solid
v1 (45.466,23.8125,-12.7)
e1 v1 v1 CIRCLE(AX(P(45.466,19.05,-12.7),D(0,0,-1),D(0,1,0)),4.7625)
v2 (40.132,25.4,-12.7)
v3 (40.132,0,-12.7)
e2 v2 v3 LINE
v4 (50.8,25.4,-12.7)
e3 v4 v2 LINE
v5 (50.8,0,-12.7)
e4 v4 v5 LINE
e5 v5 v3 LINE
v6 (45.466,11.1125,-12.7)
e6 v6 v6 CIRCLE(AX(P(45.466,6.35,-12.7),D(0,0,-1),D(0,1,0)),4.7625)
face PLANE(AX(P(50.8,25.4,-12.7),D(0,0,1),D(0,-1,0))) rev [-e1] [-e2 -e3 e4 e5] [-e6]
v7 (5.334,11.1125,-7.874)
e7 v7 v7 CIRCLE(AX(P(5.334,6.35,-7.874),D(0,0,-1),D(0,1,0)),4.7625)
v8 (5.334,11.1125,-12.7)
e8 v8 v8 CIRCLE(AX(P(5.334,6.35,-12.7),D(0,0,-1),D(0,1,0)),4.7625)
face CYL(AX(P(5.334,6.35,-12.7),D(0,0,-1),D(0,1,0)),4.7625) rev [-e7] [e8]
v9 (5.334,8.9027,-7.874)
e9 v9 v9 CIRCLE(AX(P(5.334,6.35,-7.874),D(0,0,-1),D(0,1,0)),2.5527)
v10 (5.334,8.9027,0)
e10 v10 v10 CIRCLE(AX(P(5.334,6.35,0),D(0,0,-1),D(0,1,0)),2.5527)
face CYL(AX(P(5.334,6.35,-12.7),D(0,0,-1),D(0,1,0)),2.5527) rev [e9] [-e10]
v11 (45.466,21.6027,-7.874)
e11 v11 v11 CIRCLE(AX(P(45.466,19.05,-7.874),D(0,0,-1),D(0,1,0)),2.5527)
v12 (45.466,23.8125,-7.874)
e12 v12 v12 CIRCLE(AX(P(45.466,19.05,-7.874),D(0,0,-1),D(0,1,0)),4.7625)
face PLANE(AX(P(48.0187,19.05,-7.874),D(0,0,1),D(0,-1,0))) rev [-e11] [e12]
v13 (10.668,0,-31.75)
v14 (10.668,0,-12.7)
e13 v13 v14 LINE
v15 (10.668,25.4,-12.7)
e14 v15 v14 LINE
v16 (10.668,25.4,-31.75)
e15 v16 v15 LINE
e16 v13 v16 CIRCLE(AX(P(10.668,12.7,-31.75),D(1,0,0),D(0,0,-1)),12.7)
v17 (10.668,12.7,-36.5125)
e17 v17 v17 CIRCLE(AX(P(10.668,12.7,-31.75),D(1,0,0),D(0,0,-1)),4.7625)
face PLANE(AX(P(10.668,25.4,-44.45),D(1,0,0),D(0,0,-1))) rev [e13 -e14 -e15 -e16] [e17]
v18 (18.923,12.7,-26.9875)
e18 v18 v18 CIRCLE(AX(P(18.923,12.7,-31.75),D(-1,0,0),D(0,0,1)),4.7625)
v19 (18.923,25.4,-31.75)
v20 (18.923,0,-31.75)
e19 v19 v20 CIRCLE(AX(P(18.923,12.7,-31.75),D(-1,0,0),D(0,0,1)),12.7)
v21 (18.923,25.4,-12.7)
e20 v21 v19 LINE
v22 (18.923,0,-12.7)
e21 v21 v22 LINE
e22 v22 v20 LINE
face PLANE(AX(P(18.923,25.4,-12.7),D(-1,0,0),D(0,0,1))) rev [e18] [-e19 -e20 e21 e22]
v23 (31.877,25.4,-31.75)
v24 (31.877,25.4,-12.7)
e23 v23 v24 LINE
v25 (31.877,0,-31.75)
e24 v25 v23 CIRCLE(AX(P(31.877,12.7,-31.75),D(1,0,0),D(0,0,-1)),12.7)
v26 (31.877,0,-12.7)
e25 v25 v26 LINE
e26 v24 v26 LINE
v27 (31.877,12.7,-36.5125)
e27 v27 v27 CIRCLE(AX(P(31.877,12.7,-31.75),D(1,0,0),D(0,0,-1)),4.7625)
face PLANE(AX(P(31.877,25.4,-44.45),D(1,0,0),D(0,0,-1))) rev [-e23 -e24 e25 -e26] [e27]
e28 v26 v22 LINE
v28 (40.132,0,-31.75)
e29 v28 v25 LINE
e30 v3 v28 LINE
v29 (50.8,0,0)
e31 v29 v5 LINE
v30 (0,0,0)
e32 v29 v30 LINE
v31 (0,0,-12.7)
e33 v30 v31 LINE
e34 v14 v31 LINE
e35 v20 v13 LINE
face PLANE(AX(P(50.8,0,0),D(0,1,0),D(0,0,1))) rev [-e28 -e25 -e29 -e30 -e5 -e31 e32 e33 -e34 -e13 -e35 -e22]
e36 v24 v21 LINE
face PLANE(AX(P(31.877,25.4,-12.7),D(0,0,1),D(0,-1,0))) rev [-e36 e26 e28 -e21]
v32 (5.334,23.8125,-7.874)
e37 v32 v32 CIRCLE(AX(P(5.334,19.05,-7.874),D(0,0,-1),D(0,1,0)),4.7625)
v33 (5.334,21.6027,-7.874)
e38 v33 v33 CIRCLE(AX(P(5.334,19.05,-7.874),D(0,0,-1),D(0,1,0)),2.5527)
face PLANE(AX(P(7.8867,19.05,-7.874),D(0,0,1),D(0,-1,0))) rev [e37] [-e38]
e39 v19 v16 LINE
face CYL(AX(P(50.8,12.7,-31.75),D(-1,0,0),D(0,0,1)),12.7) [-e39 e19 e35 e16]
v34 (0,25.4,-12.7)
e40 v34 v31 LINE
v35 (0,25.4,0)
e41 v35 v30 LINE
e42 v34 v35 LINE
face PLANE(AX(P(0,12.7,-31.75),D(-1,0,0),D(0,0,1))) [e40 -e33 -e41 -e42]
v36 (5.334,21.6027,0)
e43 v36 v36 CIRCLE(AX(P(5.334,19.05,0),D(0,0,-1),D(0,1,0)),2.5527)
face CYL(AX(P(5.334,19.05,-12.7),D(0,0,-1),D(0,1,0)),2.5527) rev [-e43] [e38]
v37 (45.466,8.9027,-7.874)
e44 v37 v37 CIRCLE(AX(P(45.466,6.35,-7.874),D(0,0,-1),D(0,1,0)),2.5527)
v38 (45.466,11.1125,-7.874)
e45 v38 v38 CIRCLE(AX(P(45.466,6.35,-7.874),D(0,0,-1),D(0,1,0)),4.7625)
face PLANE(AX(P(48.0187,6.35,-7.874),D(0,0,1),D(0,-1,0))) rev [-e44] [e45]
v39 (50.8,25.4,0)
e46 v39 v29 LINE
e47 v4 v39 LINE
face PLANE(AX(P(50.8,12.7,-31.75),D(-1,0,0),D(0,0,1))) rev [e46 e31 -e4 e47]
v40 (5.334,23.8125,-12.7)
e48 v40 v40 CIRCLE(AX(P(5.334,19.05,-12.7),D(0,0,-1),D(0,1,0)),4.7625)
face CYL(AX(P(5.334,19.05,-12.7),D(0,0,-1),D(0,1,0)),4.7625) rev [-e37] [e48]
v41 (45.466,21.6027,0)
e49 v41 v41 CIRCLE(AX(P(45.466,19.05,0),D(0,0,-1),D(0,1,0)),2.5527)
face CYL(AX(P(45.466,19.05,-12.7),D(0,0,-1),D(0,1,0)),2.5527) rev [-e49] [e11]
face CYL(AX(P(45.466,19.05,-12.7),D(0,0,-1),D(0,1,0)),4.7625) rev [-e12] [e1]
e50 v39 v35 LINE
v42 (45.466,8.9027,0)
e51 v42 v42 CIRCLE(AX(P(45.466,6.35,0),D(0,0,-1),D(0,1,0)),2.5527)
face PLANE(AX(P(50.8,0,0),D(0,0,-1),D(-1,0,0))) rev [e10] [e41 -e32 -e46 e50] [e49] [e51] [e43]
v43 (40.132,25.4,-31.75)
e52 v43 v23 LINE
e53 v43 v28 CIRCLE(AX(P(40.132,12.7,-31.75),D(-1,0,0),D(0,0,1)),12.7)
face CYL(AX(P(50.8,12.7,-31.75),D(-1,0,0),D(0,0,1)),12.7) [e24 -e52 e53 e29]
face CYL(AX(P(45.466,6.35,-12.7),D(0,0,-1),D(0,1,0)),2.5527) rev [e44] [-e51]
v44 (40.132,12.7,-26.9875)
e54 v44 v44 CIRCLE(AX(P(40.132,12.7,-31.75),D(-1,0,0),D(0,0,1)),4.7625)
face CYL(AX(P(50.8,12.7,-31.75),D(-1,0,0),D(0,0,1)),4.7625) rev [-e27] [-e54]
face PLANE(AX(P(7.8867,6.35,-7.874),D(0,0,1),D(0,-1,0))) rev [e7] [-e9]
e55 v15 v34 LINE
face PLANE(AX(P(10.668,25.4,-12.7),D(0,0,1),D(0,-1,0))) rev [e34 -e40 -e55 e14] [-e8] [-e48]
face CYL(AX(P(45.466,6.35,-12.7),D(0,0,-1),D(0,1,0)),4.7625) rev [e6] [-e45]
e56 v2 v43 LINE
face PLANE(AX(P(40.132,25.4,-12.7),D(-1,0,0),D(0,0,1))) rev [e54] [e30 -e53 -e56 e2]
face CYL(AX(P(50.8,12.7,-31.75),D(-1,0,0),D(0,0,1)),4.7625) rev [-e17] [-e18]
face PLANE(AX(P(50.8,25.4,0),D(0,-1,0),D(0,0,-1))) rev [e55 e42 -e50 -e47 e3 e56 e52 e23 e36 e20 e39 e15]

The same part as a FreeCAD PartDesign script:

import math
import FreeCAD as App
import Part
import Sketcher

V = App.Vector
Q = App.Units.Quantity

doc = App.newDocument("Part")
body = doc.addObject("PartDesign::Body", "Body")

# Sketch on YZ plane
sketch1 = doc.addObject("Sketcher::SketchObject", "Sketch")
body.addObject(sketch1)
sketch1.AttachmentSupport = (doc.YZ_Plane, [""])
sketch1.MapMode = "FlatFace"
sketch1.addGeometry([
    Part.LineSegment(V(0, 0, 0), V(0, -31.8, 0)),  # 0
    Part.ArcOfCircle(Part.Circle(V(12.7, -31.8, 0), V(0, 0, 1), 12.7), math.radians(180), math.radians(360)),  # 1
    Part.LineSegment(V(25.4, -31.8, 0), V(25.4, 0, 0)),  # 2
    Part.LineSegment(V(25.4, 0, 0), V(0, 0, 0)),  # 3
    Part.Circle(V(12.7, -31.8, 0), V(0, 0, 1), 4.8),  # 4
], False)
sketch1.addConstraint([
    Sketcher.Constraint("Tangent", 0, 2, 1, 1),
    Sketcher.Constraint("Tangent", 1, 2, 2, 1),
    Sketcher.Constraint("Coincident", 2, 2, 3, 1),
    Sketcher.Constraint("Coincident", 3, 2, 0, 1),
    Sketcher.Constraint("Vertical", 0),
    Sketcher.Constraint("Vertical", 2),
    Sketcher.Constraint("Horizontal", 3),
    Sketcher.Constraint("Coincident", 3, 2, -1, 1),
    Sketcher.Constraint("Coincident", 4, 3, 1, 3),
    Sketcher.Constraint("Radius", 1, Q("0.5 in")),
    Sketcher.Constraint("Diameter", 4, Q("0.375 in")),
    Sketcher.Constraint("DistanceY", 0, 2, 0, 1, Q("1.25 in")),
])
pad1 = doc.addObject("PartDesign::Pad", "Pad")
body.addObject(pad1)
pad1.Profile = sketch1
pad1.Length = Q("2 in")

# Sketch on XZ plane
sketch2 = doc.addObject("Sketcher::SketchObject", "Sketch001")
body.addObject(sketch2)
sketch2.AttachmentSupport = (doc.XZ_Plane, [""])
sketch2.MapMode = "FlatFace"
sketch2.addGeometry([
    Part.LineSegment(V(51, -13, 0), V(40, -13, 0)),  # 0
    Part.LineSegment(V(40, -13, 0), V(40, -44, 0)),  # 1
    Part.LineSegment(V(40, -44, 0), V(32, -44, 0)),  # 2
    Part.LineSegment(V(32, -44, 0), V(32, -13, 0)),  # 3
    Part.LineSegment(V(32, -13, 0), V(19, -13, 0)),  # 4
    Part.LineSegment(V(19, -13, 0), V(19, -44, 0)),  # 5
    Part.LineSegment(V(19, -44, 0), V(11, -44, 0)),  # 6
    Part.LineSegment(V(11, -44, 0), V(11, -13, 0)),  # 7
    Part.LineSegment(V(11, -13, 0), V(0, -13, 0)),  # 8
    Part.LineSegment(V(0, -13, 0), V(0, -51, 0)),  # 9
    Part.LineSegment(V(0, -51, 0), V(51, -51, 0)),  # 10
    Part.LineSegment(V(51, -51, 0), V(51, -13, 0)),  # 11
], False)
sketch2.addConstraint([
    Sketcher.Constraint("Coincident", 0, 2, 1, 1),
    Sketcher.Constraint("Coincident", 1, 2, 2, 1),
    Sketcher.Constraint("Coincident", 2, 2, 3, 1),
    Sketcher.Constraint("Coincident", 3, 2, 4, 1),
    Sketcher.Constraint("Coincident", 4, 2, 5, 1),
    Sketcher.Constraint("Coincident", 5, 2, 6, 1),
    Sketcher.Constraint("Coincident", 6, 2, 7, 1),
    Sketcher.Constraint("Coincident", 7, 2, 8, 1),
    Sketcher.Constraint("Coincident", 8, 2, 9, 1),
    Sketcher.Constraint("Coincident", 9, 2, 10, 1),
    Sketcher.Constraint("Coincident", 10, 2, 11, 1),
    Sketcher.Constraint("Coincident", 11, 2, 0, 1),
    Sketcher.Constraint("Horizontal", 0),
    Sketcher.Constraint("Vertical", 1),
    Sketcher.Constraint("Horizontal", 2),
    Sketcher.Constraint("Vertical", 3),
    Sketcher.Constraint("Horizontal", 4),
    Sketcher.Constraint("Vertical", 5),
    Sketcher.Constraint("Horizontal", 6),
    Sketcher.Constraint("Vertical", 7),
    Sketcher.Constraint("Horizontal", 8),
    Sketcher.Constraint("Vertical", 9),
    Sketcher.Constraint("Horizontal", 10),
    Sketcher.Constraint("Vertical", 11),
    Sketcher.Constraint("PointOnObject", 8, 2, -2),
    Sketcher.Constraint("Horizontal", 0, 2, 3, 2),
    Sketcher.Constraint("Horizontal", 2, 2, 5, 2),
    Sketcher.Constraint("Horizontal", 4, 2, 7, 2),
    Sketcher.Constraint("Equal", 2, 6),
    Sketcher.Constraint("Equal", 0, 8),
    Sketcher.Constraint("DistanceX", 10, 1, 10, 2, Q("2 in")),
    Sketcher.Constraint("DistanceY", 9, 2, 9, 1, Q("1.5 in")),
    Sketcher.Constraint("DistanceY", 9, 2, -1, 1, Q("2 in")),
    Sketcher.Constraint("DistanceX", 0, 2, 0, 1, Q("0.42 in")),
    Sketcher.Constraint("DistanceX", 4, 2, 4, 1, Q("0.51 in")),
    Sketcher.Constraint("DistanceY", 1, 2, 1, 1, Q("1.25 in")),
])
pocket1 = doc.addObject("PartDesign::Pocket", "Pocket")
body.addObject(pocket1)
pocket1.Profile = sketch2
pocket1.Type = "ThroughAll"

# Sketch on XY plane
sketch3 = doc.addObject("Sketcher::SketchObject", "Sketch002")
body.addObject(sketch3)
sketch3.AttachmentSupport = (doc.XY_Plane, [""])
sketch3.MapMode = "FlatFace"
sketch3.AttachmentOffset = App.Placement(V(0, 0, -0.5 * 25.4), App.Rotation())
sketch3.addGeometry([
    Part.Circle(V(45.5, 6.3, 0), V(0, 0, 1), 2.6),
    Part.Circle(V(45.5, 19.1, 0), V(0, 0, 1), 2.6),
    Part.Circle(V(5.3, 19.1, 0), V(0, 0, 1), 2.6),
    Part.Circle(V(5.3, 6.3, 0), V(0, 0, 1), 2.6),
], False)
sketch3.addConstraint([
    Sketcher.Constraint("Equal", 0, 1),
    Sketcher.Constraint("Equal", 1, 2),
    Sketcher.Constraint("Equal", 2, 3),
    Sketcher.Constraint("Horizontal", 1, 3, 2, 3),
    Sketcher.Constraint("Horizontal", 0, 3, 3, 3),
    Sketcher.Constraint("Vertical", 0, 3, 1, 3),
    Sketcher.Constraint("Vertical", 2, 3, 3, 3),
    Sketcher.Constraint("Diameter", 0, Q("0.201 in")),
    Sketcher.Constraint("DistanceY", 0, 3, 1, 3, Q("0.5 in")),
    Sketcher.Constraint("DistanceX", -1, 1, 0, 3, Q("1.79 in")),
    Sketcher.Constraint("DistanceY", -1, 1, 0, 3, Q("0.25 in")),
    Sketcher.Constraint("DistanceX", -1, 1, 2, 3, Q("0.21 in")),
])
doc.recompute()
hole = doc.addObject("PartDesign::Hole", "Hole")
body.addObject(hole)
hole.Profile = sketch3
hole.ThreadType = "None"
hole.Diameter = Q("0.201 in")
hole.DepthType = "ThroughAll"
hole.HoleCutType = "Counterbore"
hole.HoleCutDiameter = Q("0.375 in")
hole.HoleCutDepth = Q("0.19 in")
hole.Reversed = True

doc.recompute()
